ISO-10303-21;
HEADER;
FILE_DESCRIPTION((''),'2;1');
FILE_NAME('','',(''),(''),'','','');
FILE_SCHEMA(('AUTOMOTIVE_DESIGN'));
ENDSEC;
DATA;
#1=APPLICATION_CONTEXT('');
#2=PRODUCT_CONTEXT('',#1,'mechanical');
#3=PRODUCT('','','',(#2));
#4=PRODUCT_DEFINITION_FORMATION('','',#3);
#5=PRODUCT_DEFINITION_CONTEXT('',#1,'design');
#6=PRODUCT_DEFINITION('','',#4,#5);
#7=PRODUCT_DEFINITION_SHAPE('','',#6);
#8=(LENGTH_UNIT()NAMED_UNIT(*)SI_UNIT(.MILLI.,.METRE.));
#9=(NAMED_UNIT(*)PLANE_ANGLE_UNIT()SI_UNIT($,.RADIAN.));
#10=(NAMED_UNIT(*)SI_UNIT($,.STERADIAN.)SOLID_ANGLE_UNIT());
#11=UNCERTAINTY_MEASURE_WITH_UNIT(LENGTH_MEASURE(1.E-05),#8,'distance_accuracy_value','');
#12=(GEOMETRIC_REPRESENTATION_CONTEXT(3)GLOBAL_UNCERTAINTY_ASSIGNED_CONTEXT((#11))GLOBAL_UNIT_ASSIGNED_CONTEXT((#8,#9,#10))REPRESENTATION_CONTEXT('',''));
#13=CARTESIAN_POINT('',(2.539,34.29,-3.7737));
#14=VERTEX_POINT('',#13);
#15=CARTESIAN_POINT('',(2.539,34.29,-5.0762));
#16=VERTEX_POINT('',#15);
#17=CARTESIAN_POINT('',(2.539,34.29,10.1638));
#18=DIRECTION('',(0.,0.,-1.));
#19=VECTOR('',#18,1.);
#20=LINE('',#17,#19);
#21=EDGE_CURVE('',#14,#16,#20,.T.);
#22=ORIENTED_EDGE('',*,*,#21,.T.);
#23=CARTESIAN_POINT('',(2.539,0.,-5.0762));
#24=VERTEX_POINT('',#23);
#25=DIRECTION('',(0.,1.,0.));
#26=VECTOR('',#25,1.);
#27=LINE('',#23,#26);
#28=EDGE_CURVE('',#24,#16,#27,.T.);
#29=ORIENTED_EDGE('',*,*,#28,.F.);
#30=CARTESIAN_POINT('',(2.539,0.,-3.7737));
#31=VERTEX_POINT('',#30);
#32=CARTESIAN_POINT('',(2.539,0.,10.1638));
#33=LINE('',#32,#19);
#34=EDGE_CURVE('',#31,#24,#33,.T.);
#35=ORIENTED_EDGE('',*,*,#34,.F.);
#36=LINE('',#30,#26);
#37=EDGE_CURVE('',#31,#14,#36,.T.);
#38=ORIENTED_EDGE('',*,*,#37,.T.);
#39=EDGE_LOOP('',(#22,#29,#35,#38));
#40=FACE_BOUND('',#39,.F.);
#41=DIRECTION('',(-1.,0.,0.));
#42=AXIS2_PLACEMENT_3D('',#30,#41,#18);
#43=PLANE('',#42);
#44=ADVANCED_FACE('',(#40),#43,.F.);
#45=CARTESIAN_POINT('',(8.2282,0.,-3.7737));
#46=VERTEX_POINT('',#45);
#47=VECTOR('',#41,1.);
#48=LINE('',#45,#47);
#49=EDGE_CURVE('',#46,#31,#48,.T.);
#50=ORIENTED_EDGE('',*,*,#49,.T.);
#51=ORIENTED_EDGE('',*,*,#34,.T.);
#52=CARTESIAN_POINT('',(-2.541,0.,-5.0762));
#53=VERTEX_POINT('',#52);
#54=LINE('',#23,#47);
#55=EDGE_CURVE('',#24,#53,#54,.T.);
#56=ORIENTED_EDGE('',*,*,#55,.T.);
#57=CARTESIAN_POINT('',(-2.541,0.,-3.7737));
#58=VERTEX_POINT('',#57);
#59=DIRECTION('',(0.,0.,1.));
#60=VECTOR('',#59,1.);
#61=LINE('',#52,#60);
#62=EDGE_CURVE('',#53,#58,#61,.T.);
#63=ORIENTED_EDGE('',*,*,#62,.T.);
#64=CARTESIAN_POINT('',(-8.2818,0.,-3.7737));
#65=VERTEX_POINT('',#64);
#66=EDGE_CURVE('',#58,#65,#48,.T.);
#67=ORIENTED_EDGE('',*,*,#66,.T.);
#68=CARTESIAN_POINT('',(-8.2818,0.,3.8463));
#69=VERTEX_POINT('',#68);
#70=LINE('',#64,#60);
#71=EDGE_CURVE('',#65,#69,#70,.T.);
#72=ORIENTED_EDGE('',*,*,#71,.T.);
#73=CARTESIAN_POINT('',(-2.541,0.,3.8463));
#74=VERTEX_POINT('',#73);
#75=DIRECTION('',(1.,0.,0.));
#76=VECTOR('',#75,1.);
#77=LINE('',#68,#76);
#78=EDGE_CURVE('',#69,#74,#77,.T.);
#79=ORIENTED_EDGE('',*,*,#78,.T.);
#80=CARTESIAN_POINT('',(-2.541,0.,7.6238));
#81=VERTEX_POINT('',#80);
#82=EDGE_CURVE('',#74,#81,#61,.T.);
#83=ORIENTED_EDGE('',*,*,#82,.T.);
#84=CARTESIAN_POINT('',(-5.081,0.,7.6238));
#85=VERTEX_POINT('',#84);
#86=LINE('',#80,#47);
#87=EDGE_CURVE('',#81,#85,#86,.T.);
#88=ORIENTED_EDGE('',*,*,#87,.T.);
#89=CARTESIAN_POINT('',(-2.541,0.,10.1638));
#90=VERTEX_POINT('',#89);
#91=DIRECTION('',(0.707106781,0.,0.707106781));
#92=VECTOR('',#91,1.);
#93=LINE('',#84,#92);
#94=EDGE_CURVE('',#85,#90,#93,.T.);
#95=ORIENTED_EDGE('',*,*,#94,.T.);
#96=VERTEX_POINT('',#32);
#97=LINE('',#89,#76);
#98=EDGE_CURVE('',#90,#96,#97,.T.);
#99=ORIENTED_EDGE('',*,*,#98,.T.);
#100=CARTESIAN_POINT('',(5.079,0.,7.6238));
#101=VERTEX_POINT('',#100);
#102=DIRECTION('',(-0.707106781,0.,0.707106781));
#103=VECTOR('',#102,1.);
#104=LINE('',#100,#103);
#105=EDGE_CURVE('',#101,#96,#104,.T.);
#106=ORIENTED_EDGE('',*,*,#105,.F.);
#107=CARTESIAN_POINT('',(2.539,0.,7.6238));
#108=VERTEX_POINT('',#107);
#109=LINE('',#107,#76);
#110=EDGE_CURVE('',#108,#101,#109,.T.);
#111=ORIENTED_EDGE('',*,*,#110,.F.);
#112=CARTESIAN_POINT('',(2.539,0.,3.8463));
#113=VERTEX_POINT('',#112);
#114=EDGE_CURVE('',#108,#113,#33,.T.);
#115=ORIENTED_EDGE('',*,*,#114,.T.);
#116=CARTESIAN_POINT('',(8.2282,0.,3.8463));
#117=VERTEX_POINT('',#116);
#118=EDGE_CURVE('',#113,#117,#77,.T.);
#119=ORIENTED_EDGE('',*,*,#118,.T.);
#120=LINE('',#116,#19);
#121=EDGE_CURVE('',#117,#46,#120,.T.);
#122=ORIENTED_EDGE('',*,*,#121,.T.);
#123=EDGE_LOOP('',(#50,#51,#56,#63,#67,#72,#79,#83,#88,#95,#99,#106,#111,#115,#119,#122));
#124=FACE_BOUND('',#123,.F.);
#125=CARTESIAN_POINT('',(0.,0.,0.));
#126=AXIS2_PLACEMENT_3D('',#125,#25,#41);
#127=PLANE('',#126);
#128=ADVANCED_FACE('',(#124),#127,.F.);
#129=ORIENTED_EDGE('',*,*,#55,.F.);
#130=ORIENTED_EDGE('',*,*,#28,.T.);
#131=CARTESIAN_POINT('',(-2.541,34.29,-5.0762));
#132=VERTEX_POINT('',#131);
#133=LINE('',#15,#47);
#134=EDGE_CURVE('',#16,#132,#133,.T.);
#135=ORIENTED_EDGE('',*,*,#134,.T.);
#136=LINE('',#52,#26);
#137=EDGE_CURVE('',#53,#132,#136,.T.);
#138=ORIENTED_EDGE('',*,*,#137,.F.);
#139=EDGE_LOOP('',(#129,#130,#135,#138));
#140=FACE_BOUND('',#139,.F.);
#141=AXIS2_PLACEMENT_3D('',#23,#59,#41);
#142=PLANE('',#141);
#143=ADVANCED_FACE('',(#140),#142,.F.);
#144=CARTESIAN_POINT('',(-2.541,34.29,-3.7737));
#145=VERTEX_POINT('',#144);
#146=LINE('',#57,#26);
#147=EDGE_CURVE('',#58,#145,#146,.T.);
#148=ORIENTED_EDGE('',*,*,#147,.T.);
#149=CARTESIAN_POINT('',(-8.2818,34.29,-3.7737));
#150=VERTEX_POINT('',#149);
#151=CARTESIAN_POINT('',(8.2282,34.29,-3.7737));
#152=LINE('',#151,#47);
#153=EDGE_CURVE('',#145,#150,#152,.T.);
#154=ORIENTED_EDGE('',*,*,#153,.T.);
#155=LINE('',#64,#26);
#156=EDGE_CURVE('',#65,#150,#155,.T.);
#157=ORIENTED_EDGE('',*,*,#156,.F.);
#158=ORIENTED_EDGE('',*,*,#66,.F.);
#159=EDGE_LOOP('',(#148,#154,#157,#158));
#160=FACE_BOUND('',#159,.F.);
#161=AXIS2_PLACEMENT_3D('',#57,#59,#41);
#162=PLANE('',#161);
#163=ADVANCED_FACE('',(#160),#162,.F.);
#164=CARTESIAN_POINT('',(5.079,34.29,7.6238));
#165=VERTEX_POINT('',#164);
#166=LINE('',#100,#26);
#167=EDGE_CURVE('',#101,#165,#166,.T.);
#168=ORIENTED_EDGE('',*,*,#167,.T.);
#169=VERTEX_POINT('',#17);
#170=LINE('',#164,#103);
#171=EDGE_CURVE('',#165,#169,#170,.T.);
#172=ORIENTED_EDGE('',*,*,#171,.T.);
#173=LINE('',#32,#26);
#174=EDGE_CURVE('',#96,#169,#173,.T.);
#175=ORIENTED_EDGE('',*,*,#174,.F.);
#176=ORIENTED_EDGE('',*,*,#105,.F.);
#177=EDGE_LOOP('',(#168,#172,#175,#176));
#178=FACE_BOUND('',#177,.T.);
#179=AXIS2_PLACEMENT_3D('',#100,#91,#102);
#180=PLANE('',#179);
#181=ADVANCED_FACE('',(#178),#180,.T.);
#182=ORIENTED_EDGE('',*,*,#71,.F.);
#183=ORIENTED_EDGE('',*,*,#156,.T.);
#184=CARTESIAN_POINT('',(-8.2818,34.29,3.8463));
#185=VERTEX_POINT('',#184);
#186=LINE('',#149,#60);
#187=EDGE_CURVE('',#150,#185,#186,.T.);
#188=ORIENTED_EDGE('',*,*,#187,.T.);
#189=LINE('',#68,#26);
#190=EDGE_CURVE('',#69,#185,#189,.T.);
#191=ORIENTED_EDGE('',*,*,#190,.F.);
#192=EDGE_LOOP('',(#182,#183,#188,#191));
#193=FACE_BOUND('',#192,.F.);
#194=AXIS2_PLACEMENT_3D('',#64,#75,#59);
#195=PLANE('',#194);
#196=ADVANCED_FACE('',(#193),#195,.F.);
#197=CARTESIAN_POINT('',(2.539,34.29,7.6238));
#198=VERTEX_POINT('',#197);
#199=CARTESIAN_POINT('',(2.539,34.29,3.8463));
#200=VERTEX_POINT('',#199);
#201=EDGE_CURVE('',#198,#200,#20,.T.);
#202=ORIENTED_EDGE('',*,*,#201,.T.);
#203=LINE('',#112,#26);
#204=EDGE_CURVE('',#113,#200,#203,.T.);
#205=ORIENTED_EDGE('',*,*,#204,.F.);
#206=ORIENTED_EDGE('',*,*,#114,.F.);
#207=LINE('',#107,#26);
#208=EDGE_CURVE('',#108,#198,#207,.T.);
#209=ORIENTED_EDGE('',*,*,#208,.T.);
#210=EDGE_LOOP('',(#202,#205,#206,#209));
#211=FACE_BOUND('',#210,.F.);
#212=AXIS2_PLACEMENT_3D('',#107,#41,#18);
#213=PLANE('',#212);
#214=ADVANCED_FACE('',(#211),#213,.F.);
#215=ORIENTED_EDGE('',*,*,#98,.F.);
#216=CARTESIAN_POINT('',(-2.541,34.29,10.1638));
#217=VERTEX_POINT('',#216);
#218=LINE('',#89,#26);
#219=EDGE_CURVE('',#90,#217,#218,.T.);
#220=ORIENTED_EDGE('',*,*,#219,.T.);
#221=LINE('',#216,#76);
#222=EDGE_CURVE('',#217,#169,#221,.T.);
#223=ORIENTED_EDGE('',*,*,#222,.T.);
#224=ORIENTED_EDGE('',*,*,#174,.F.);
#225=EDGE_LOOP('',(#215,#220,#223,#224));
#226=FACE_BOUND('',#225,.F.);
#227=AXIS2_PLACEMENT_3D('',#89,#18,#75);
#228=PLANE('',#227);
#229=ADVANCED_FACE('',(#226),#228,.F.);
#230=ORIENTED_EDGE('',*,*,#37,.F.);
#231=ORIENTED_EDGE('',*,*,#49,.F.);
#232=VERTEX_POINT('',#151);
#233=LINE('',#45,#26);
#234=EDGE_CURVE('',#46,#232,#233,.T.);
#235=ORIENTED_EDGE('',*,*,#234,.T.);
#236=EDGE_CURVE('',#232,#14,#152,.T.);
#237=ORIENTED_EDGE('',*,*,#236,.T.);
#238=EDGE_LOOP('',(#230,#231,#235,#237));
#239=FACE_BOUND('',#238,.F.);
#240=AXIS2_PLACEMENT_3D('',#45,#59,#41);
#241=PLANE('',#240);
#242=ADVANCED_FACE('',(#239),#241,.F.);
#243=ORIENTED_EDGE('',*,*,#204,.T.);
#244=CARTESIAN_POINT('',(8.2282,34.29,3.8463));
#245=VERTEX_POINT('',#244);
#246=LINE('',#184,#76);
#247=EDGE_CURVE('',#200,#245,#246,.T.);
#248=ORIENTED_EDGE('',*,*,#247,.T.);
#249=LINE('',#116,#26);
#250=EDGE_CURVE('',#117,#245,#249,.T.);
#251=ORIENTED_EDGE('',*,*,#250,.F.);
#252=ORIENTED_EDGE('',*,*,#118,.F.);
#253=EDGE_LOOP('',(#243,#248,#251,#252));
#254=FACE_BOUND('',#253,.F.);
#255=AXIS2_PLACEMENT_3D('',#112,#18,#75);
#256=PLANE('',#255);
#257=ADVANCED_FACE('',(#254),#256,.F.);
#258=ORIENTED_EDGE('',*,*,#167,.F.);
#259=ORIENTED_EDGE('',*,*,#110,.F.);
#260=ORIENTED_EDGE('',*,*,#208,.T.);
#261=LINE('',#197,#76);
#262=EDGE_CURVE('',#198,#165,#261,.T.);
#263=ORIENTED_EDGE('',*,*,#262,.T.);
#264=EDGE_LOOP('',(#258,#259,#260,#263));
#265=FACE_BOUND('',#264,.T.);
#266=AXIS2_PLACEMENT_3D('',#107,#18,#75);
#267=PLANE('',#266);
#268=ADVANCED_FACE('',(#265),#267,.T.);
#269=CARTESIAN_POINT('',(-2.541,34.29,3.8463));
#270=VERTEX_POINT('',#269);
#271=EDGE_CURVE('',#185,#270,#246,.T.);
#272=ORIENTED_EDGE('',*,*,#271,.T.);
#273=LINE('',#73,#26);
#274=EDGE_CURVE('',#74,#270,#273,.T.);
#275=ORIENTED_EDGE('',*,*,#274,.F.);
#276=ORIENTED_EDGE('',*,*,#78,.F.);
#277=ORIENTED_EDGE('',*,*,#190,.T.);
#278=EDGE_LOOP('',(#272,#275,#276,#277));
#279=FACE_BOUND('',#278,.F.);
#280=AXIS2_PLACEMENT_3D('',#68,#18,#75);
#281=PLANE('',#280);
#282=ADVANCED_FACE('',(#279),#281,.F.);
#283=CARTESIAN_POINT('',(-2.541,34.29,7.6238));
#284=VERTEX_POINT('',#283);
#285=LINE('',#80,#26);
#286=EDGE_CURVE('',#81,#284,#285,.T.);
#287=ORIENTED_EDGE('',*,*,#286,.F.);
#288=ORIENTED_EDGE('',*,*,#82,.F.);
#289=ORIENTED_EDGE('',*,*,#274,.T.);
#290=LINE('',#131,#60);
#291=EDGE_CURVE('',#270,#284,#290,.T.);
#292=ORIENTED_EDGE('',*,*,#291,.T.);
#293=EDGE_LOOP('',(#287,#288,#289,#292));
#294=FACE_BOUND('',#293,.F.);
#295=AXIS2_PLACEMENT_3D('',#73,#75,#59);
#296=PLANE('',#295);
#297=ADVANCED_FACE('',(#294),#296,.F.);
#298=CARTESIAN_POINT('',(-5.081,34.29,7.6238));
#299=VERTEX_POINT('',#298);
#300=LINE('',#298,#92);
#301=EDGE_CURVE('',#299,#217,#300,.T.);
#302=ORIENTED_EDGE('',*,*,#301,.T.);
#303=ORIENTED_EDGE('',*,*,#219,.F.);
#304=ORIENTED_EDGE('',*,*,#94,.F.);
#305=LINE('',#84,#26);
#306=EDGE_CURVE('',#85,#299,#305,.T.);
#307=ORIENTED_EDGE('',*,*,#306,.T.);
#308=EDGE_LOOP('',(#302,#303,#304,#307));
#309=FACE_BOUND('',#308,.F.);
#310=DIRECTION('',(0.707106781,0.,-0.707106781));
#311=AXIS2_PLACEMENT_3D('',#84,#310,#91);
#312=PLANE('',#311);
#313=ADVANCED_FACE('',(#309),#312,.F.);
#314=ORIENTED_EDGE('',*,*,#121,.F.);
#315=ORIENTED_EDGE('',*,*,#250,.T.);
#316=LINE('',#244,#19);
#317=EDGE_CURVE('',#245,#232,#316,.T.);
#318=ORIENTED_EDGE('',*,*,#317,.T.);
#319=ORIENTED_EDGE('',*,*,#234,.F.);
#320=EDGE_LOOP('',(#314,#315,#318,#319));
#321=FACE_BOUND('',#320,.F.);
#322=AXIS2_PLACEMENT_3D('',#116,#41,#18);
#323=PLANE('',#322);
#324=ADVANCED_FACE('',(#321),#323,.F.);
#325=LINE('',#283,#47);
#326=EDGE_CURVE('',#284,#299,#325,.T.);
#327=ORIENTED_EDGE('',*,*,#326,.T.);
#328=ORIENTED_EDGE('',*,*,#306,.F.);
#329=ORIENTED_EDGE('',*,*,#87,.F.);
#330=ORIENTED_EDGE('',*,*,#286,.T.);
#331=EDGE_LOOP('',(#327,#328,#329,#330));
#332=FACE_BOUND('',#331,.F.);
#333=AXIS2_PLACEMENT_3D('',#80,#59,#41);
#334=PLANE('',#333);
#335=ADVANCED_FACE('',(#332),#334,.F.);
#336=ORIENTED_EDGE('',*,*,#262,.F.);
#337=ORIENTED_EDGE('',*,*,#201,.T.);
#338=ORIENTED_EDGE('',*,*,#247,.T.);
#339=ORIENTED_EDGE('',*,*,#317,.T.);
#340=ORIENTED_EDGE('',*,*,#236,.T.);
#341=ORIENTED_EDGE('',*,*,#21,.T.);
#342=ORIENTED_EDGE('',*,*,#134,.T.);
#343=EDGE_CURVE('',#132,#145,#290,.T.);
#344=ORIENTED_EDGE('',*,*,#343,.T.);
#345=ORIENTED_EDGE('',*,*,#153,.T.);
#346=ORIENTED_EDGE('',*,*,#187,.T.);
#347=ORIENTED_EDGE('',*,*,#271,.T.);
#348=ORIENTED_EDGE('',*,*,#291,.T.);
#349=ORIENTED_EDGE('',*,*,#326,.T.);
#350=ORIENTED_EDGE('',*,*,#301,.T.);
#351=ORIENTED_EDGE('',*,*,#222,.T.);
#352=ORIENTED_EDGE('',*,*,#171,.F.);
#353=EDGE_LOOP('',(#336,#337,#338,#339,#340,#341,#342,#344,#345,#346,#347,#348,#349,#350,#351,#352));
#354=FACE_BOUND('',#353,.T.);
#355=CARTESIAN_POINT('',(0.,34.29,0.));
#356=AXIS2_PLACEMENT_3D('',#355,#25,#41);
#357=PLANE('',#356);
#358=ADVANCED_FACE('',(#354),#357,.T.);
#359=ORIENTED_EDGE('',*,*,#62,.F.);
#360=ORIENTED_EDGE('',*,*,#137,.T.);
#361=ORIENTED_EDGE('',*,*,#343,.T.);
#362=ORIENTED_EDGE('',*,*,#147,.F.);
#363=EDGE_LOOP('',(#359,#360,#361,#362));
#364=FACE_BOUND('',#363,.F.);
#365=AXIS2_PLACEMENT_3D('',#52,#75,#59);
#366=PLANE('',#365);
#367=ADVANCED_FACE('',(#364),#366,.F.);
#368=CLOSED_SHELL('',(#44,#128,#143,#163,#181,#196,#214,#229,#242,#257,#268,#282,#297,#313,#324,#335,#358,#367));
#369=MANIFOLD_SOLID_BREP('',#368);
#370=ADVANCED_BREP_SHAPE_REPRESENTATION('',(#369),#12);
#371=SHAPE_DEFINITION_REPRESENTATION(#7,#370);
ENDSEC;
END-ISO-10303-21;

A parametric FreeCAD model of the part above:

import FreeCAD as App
import Part
import Sketcher
Q = App.Units.Quantity


def add_polygon(sketch, points):
    """Adds a closed chain of lines whose ends are joined by coincident constraints."""
    first, n = sketch.GeometryCount, len(points)
    for a, b in zip(points, points[1:] + points[:1]):
        sketch.addGeometry(Part.LineSegment(App.Vector(*a, 0), App.Vector(*b, 0)), False)
    for i in range(n):
        sketch.addConstraint(Sketcher.Constraint("Coincident", first + i, 2, first + (i + 1) % n, 1))

doc = App.newDocument("Part")
body = doc.addObject("PartDesign::Body", "Body")

# Sketch on XZ plane
sketch1 = body.newObject("Sketcher::SketchObject", "Sketch")
sketch1.AttachmentSupport = (doc.getObject("XZ_Plane"), [""])
sketch1.MapMode = "FlatFace"
add_polygon(sketch1, [(-8.2818, -3.7737), (-8.2818, 3.8463), (-2.541, 3.8463), (-2.541, 7.6238), (-5.081, 7.6238), (-2.541, 10.1638), (2.539, 10.1638), (5.079, 7.6238), (2.539, 7.6238), (2.539, 3.8463), (8.2282, 3.8463), (8.2282, -3.7737), (2.539, -3.7737), (2.539, -5.0762), (-2.541, -5.0762), (-2.541, -3.7737)])  # lines 0-15
sketch1.addConstraint(Sketcher.Constraint("Vertical", 0))
sketch1.addConstraint(Sketcher.Constraint("Horizontal", 1))
sketch1.addConstraint(Sketcher.Constraint("Vertical", 2))
sketch1.addConstraint(Sketcher.Constraint("Horizontal", 3))
sketch1.addConstraint(Sketcher.Constraint("Horizontal", 5))
sketch1.addConstraint(Sketcher.Constraint("Horizontal", 7))
sketch1.addConstraint(Sketcher.Constraint("Vertical", 8))
sketch1.addConstraint(Sketcher.Constraint("Horizontal", 9))
sketch1.addConstraint(Sketcher.Constraint("Vertical", 10))
sketch1.addConstraint(Sketcher.Constraint("Horizontal", 11))
sketch1.addConstraint(Sketcher.Constraint("Vertical", 12))
sketch1.addConstraint(Sketcher.Constraint("Horizontal", 13))
sketch1.addConstraint(Sketcher.Constraint("Vertical", 14))
sketch1.addConstraint(Sketcher.Constraint("Horizontal", 15))
sketch1.addConstraint(Sketcher.Constraint("Perpendicular", 4, 6))
sketch1.addConstraint(Sketcher.Constraint("Horizontal", 3, 2, 6, 2))
sketch1.addConstraint(Sketcher.Constraint("Horizontal", 1, 2, 8, 2))
sketch1.addConstraint(Sketcher.Constraint("Horizontal", 11, 2, 14, 2))
sketch1.addConstraint(Sketcher.Constraint("Vertical", 2, 2, 4, 2))
sketch1.addConstraint(Sketcher.Constraint("Vertical", 5, 2, 7, 2))
sketch1.addConstraint(Sketcher.Constraint("Vertical", 8, 2, 11, 2))
sketch1.addConstraint(Sketcher.Constraint("Vertical", 4, 2, 13, 2))
sketch1.addConstraint(Sketcher.Constraint("Equal", 3, 7))
sketch1.addConstraint(Sketcher.Constraint("DistanceX", 3, 2, 3, 1, Q("0.1 in")))
sketch1.addConstraint(Sketcher.Constraint("DistanceX", 5, 1, 5, 2, Q("0.2 in")))
sketch1.addConstraint(Sketcher.Constraint("DistanceY", 0, 1, 0, 2, Q("0.3 in")))
sketch1.addConstraint(Sketcher.Constraint("DistanceX", 1, 1, 1, 2, Q("5.7408 mm")))
sketch1.addConstraint(Sketcher.Constraint("DistanceX", 9, 1, 9, 2, Q("5.6892 mm")))
sketch1.addConstraint(Sketcher.Constraint("DistanceY", 2, 1, 2, 2, Q("3.7775 mm")))
sketch1.addConstraint(Sketcher.Constraint("DistanceY", 12, 2, 12, 1, Q("1.3025 mm")))
sketch1.addConstraint(Sketcher.Constraint("DistanceX", 0, 2, -1, 1, Q("8.2818 mm")))
sketch1.addConstraint(Sketcher.Constraint("DistanceY", -1, 1, 0, 2, Q("3.8463 mm")))
pad1 = body.newObject("PartDesign::Pad", "Pad")
pad1.Profile = sketch1
pad1.Length = Q("1.35 in")
pad1.Reversed = True

doc.recompute()
